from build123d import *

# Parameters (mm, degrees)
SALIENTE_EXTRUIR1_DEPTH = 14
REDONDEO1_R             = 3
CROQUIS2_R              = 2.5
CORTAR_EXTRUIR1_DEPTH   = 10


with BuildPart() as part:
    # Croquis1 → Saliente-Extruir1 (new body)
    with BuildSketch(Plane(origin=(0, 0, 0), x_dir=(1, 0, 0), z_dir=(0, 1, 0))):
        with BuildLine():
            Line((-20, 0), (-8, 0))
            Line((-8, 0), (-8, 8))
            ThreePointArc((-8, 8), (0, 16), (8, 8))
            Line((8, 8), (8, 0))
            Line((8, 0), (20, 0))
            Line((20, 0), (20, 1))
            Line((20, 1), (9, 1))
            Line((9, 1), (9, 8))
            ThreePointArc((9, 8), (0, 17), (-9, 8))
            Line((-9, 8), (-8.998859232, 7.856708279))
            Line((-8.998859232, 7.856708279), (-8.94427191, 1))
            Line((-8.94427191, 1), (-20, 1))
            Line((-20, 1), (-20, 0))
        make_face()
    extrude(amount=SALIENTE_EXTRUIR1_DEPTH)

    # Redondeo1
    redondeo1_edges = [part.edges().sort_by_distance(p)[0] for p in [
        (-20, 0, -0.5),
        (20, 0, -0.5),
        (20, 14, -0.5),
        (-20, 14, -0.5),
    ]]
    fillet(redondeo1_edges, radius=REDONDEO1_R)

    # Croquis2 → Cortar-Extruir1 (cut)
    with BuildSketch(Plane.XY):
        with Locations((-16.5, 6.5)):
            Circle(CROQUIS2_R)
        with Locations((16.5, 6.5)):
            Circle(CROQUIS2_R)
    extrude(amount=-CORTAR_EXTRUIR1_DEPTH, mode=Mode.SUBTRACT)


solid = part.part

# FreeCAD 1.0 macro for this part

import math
import FreeCAD as App
import Part
import Sketcher


def edges_at(feature, points):
    """Names of the edges that pass closest to the given points."""
    edges = feature.Shape.Edges
    near = lambda p: min(range(len(edges)), key=lambda i: edges[i].distToShape(Part.Vertex(*p))[0])
    return sorted({f"Edge{near(p) + 1}" for p in points})

doc = App.newDocument("Part")
body = doc.addObject("PartDesign::Body", "Body")

# Sketch on XZ plane
sketch1 = body.newObject("Sketcher::SketchObject", "Sketch")
sketch1.AttachmentSupport = (doc.getObject("XZ_Plane"), [""])
sketch1.MapMode = "FlatFace"
sketch1.addGeometry([
    Part.LineSegment(App.Vector(-20, 0, 0), App.Vector(-8, 0, 0)),  # 0
    Part.LineSegment(App.Vector(-8, 0, 0), App.Vector(-8, -8, 0)),  # 1
    Part.ArcOfCircle(Part.Circle(App.Vector(0, -8, 0), App.Vector(0, 0, 1), 8), math.radians(180), math.radians(360)),  # 2
    Part.LineSegment(App.Vector(8, -8, 0), App.Vector(8, 0, 0)),  # 3
    Part.LineSegment(App.Vector(8, 0, 0), App.Vector(20, 0, 0)),  # 4
    Part.LineSegment(App.Vector(20, 0, 0), App.Vector(20, -1, 0)),  # 5
    Part.LineSegment(App.Vector(20, -1, 0), App.Vector(9, -1, 0)),  # 6
    Part.LineSegment(App.Vector(9, -1, 0), App.Vector(9, -8, 0)),  # 7
    Part.ArcOfCircle(Part.Circle(App.Vector(0, -8, 0), App.Vector(0, 0, 1), 9), math.radians(180), math.radians(360)),  # 8
    Part.LineSegment(App.Vector(-9, -8, 0), App.Vector(-8.998859, -7.856708, 0)),  # 9
    Part.LineSegment(App.Vector(-8.998859, -7.856708, 0), App.Vector(-8.944272, -1, 0)),  # 10
    Part.LineSegment(App.Vector(-8.944272, -1, 0), App.Vector(-20, -1, 0)),  # 11
    Part.LineSegment(App.Vector(-20, -1, 0), App.Vector(-20, 0, 0)),  # 12
], False)
sketch1.addConstraint([
    Sketcher.Constraint("Coincident", 0, 2, 1, 1),
    Sketcher.Constraint("Coincident", 1, 2, 2, 1),
    Sketcher.Constraint("Coincident", 2, 2, 3, 1),
    Sketcher.Constraint("Coincident", 3, 2, 4, 1),
    Sketcher.Constraint("Coincident", 4, 2, 5, 1),
    Sketcher.Constraint("Coincident", 5, 2, 6, 1),
    Sketcher.Constraint("Coincident", 6, 2, 7, 1),
    Sketcher.Constraint("Coincident", 7, 2, 8, 2),
    Sketcher.Constraint("Coincident", 8, 1, 9, 1),
    Sketcher.Constraint("Coincident", 9, 2, 10, 1),
    Sketcher.Constraint("Coincident", 10, 2, 11, 1),
    Sketcher.Constraint("Coincident", 11, 2, 12, 1),
    Sketcher.Constraint("Coincident", 12, 2, 0, 1),
    Sketcher.Constraint("Horizontal", 0),
    Sketcher.Constraint("Vertical", 1),
    Sketcher.Constraint("Vertical", 3),
    Sketcher.Constraint("Horizontal", 4),
    Sketcher.Constraint("Vertical", 5),
    Sketcher.Constraint("Horizontal", 6),
    Sketcher.Constraint("Vertical", 7),
    Sketcher.Constraint("Horizontal", 11),
    Sketcher.Constraint("Vertical", 12),
    Sketcher.Constraint("Coincident", 8, 3, 2, 3),
    Sketcher.Constraint("PointOnObject", 2, 3, -2),
    Sketcher.Constraint("PointOnObject", 0, 2, -1),
    Sketcher.Constraint("PointOnObject", 3, 2, -1),
    Sketcher.Constraint("Radius", 2, 8.0),
    Sketcher.Constraint("Radius", 8, 9.0),
    Sketcher.Constraint("DistanceX", 0, 1, 0, 2, 12.0),
    Sketcher.Constraint("DistanceX", 4, 1, 4, 2, 12.0),
    Sketcher.Constraint("DistanceY", 1, 2, 1, 1, 8.0),
    Sketcher.Constraint("DistanceY", 3, 1, 3, 2, 8.0),
    Sketcher.Constraint("DistanceY", 5, 2, 5, 1, 1.0),
    Sketcher.Constraint("DistanceY", 7, 2, 7, 1, 7.0),
    Sketcher.Constraint("DistanceY", 12, 1, 12, 2, 1.0),
    Sketcher.Constraint("DistanceY", 2, 3, -1, 1, 8.0),
    Sketcher.Constraint("DistanceY", 8, 1, -1, 1, 8.0),
    Sketcher.Constraint("DistanceX", 11, 2, 11, 1, 11.055728),
    Sketcher.Constraint("DistanceX", 9, 2, -1, 1, 8.998859),
    Sketcher.Constraint("DistanceY", 9, 2, -1, 1, 7.856708),
])
pad1 = body.newObject("PartDesign::Pad", "Pad")
pad1.Profile = sketch1
pad1.Length = 14
pad1.Reversed = True
doc.recompute()

fillet = body.newObject("PartDesign::Fillet", "Fillet")
fillet.Base = (pad1, edges_at(pad1, [
    (-20, 0, -0.5),
    (20, 0, -0.5),
    (20, 14, -0.5),
    (-20, 14, -0.5),
]))
fillet.Radius = 3

# Sketch on XY plane
sketch2 = body.newObject("Sketcher::SketchObject", "Sketch001")
sketch2.AttachmentSupport = (doc.getObject("XY_Plane"), [""])
sketch2.MapMode = "FlatFace"
sketch2.addGeometry([
    Part.Circle(App.Vector(-16.5, 6.5, 0), App.Vector(0, 0, 1), 2.5),
    Part.Circle(App.Vector(16.5, 6.5, 0), App.Vector(0, 0, 1), 2.5),
], False)
sketch2.addConstraint([
    Sketcher.Constraint("Equal", 0, 1),
    Sketcher.Constraint("Symmetric", 0, 3, 1, 3, -2),
    Sketcher.Constraint("Diameter", 0, 5.0),
    Sketcher.Constraint("DistanceX", 0, 3, 1, 3, 33.0),
    Sketcher.Constraint("DistanceY", -1, 1, 0, 3, 6.5),
])
pocket1 = body.newObject("PartDesign::Pocket", "Pocket")
pocket1.Profile = sketch2
pocket1.Length = 10

doc.recompute()
